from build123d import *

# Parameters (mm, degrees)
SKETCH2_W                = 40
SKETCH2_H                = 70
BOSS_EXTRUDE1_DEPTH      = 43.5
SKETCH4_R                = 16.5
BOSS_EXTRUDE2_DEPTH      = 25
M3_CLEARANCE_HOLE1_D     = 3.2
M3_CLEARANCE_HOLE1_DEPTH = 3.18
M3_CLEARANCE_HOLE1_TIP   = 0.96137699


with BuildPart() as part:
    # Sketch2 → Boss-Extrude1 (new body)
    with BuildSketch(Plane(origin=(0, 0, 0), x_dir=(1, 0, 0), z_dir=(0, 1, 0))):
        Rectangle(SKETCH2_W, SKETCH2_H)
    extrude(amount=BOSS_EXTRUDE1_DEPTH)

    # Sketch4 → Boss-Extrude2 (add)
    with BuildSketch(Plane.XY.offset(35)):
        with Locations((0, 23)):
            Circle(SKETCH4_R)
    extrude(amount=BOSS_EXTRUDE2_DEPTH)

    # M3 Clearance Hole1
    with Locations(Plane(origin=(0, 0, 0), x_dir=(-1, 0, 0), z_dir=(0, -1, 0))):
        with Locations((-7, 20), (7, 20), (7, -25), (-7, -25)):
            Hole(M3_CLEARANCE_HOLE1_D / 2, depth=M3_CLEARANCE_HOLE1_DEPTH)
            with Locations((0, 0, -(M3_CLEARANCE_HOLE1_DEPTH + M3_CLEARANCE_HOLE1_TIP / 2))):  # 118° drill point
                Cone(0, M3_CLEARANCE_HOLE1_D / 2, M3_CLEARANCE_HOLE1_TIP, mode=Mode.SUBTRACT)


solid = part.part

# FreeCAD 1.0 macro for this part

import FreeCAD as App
import Part
import Sketcher

V = App.Vector
Q = App.Units.Quantity

doc = App.newDocument("Part")
body = doc.addObject("PartDesign::Body", "Body")

sketch1 = body.newObject("Sketcher::SketchObject", "Sketch")
sketch1.AttachmentSupport = (doc.getObject("XZ_Plane"), [""])
sketch1.MapMode = "FlatFace"
sketch1.addGeometry(Part.LineSegment(V(-20, -35, 0), V(-20, 35, 0)), False)
sketch1.addGeometry(Part.LineSegment(V(-20, 35, 0), V(20, 35, 0)), False)
sketch1.addGeometry(Part.LineSegment(V(20, 35, 0), V(20, -35, 0)), False)
sketch1.addGeometry(Part.LineSegment(V(20, -35, 0), V(-20, -35, 0)), False)
sketch1.addConstraint(Sketcher.Constraint("Coincident", 0, 2, 1, 1))
sketch1.addConstraint(Sketcher.Constraint("Coincident", 1, 2, 2, 1))
sketch1.addConstraint(Sketcher.Constraint("Coincident", 2, 2, 3, 1))
sketch1.addConstraint(Sketcher.Constraint("Coincident", 3, 2, 0, 1))
sketch1.addConstraint(Sketcher.Constraint("Vertical", 0))
sketch1.addConstraint(Sketcher.Constraint("Horizontal", 1))
sketch1.addConstraint(Sketcher.Constraint("Vertical", 2))
sketch1.addConstraint(Sketcher.Constraint("Horizontal", 3))
sketch1.addConstraint(Sketcher.Constraint("Symmetric", 0, 2, 2, 2, -1, 1))
sketch1.addConstraint(Sketcher.Constraint("DistanceX", 1, 1, 1, 2, Q("40 mm")))
sketch1.addConstraint(Sketcher.Constraint("DistanceY", 0, 1, 0, 2, Q("70 mm")))
pad1 = body.newObject("PartDesign::Pad", "Pad")
pad1.Profile = sketch1
pad1.Length = 43.5
pad1.Reversed = True

sketch2 = body.newObject("Sketcher::SketchObject", "Sketch001")
sketch2.AttachmentSupport = (doc.getObject("XY_Plane"), [""])
sketch2.MapMode = "FlatFace"
sketch2.AttachmentOffset = App.Placement(V(0, 0, 35), App.Rotation())
sketch2.addGeometry(Part.Circle(V(0, 23, 0), V(0, 0, 1), 16), False)
sketch2.addConstraint(Sketcher.Constraint("PointOnObject", 0, 3, -2))
sketch2.addConstraint(Sketcher.Constraint("Diameter", 0, Q("33 mm")))
sketch2.addConstraint(Sketcher.Constraint("DistanceY", -1, 1, 0, 3, Q("23 mm")))
pad2 = body.newObject("PartDesign::Pad", "Pad001")
pad2.Profile = sketch2
pad2.Length = 25

sketch3 = body.newObject("Sketcher::SketchObject", "Sketch002")
sketch3.AttachmentSupport = (doc.getObject("XZ_Plane"), [""])
sketch3.MapMode = "FlatFace"
sketch3.addGeometry(Part.Circle(V(7, -20, 0), V(0, 0, 1), 1.6), False)
sketch3.addGeometry(Part.Circle(V(-7, -20, 0), V(0, 0, 1), 1.6), False)
sketch3.addGeometry(Part.Circle(V(-7, 25, 0), V(0, 0, 1), 1.6), False)
sketch3.addGeometry(Part.Circle(V(7, 25, 0), V(0, 0, 1), 1.6), False)
sketch3.addConstraint(Sketcher.Constraint("Equal", 0, 1))
sketch3.addConstraint(Sketcher.Constraint("Equal", 1, 2))
sketch3.addConstraint(Sketcher.Constraint("Equal", 2, 3))
sketch3.addConstraint(Sketcher.Constraint("Symmetric", 0, 3, 1, 3, -2))
sketch3.addConstraint(Sketcher.Constraint("Symmetric", 2, 3, 3, 3, -2))
sketch3.addConstraint(Sketcher.Constraint("Vertical", 1, 3, 2, 3))
sketch3.addConstraint(Sketcher.Constraint("Diameter", 0, Q("3.2 mm")))
sketch3.addConstraint(Sketcher.Constraint("DistanceX", -1, 1, 0, 3, Q("7 mm")))
sketch3.addConstraint(Sketcher.Constraint("DistanceY", 0, 3, -1, 1, Q("20 mm")))
sketch3.addConstraint(Sketcher.Constraint("DistanceY", -1, 1, 2, 3, Q("25 mm")))
doc.recompute()
hole = body.newObject("PartDesign::Hole", "Hole")
hole.Profile = sketch3
hole.ThreadType = "None"
hole.Diameter = 3.2
hole.DepthType = "Dimension"
hole.Depth = 3.18
hole.DrillPoint = "Angled"
hole.DrillPointAngle = 118

doc.recompute()
